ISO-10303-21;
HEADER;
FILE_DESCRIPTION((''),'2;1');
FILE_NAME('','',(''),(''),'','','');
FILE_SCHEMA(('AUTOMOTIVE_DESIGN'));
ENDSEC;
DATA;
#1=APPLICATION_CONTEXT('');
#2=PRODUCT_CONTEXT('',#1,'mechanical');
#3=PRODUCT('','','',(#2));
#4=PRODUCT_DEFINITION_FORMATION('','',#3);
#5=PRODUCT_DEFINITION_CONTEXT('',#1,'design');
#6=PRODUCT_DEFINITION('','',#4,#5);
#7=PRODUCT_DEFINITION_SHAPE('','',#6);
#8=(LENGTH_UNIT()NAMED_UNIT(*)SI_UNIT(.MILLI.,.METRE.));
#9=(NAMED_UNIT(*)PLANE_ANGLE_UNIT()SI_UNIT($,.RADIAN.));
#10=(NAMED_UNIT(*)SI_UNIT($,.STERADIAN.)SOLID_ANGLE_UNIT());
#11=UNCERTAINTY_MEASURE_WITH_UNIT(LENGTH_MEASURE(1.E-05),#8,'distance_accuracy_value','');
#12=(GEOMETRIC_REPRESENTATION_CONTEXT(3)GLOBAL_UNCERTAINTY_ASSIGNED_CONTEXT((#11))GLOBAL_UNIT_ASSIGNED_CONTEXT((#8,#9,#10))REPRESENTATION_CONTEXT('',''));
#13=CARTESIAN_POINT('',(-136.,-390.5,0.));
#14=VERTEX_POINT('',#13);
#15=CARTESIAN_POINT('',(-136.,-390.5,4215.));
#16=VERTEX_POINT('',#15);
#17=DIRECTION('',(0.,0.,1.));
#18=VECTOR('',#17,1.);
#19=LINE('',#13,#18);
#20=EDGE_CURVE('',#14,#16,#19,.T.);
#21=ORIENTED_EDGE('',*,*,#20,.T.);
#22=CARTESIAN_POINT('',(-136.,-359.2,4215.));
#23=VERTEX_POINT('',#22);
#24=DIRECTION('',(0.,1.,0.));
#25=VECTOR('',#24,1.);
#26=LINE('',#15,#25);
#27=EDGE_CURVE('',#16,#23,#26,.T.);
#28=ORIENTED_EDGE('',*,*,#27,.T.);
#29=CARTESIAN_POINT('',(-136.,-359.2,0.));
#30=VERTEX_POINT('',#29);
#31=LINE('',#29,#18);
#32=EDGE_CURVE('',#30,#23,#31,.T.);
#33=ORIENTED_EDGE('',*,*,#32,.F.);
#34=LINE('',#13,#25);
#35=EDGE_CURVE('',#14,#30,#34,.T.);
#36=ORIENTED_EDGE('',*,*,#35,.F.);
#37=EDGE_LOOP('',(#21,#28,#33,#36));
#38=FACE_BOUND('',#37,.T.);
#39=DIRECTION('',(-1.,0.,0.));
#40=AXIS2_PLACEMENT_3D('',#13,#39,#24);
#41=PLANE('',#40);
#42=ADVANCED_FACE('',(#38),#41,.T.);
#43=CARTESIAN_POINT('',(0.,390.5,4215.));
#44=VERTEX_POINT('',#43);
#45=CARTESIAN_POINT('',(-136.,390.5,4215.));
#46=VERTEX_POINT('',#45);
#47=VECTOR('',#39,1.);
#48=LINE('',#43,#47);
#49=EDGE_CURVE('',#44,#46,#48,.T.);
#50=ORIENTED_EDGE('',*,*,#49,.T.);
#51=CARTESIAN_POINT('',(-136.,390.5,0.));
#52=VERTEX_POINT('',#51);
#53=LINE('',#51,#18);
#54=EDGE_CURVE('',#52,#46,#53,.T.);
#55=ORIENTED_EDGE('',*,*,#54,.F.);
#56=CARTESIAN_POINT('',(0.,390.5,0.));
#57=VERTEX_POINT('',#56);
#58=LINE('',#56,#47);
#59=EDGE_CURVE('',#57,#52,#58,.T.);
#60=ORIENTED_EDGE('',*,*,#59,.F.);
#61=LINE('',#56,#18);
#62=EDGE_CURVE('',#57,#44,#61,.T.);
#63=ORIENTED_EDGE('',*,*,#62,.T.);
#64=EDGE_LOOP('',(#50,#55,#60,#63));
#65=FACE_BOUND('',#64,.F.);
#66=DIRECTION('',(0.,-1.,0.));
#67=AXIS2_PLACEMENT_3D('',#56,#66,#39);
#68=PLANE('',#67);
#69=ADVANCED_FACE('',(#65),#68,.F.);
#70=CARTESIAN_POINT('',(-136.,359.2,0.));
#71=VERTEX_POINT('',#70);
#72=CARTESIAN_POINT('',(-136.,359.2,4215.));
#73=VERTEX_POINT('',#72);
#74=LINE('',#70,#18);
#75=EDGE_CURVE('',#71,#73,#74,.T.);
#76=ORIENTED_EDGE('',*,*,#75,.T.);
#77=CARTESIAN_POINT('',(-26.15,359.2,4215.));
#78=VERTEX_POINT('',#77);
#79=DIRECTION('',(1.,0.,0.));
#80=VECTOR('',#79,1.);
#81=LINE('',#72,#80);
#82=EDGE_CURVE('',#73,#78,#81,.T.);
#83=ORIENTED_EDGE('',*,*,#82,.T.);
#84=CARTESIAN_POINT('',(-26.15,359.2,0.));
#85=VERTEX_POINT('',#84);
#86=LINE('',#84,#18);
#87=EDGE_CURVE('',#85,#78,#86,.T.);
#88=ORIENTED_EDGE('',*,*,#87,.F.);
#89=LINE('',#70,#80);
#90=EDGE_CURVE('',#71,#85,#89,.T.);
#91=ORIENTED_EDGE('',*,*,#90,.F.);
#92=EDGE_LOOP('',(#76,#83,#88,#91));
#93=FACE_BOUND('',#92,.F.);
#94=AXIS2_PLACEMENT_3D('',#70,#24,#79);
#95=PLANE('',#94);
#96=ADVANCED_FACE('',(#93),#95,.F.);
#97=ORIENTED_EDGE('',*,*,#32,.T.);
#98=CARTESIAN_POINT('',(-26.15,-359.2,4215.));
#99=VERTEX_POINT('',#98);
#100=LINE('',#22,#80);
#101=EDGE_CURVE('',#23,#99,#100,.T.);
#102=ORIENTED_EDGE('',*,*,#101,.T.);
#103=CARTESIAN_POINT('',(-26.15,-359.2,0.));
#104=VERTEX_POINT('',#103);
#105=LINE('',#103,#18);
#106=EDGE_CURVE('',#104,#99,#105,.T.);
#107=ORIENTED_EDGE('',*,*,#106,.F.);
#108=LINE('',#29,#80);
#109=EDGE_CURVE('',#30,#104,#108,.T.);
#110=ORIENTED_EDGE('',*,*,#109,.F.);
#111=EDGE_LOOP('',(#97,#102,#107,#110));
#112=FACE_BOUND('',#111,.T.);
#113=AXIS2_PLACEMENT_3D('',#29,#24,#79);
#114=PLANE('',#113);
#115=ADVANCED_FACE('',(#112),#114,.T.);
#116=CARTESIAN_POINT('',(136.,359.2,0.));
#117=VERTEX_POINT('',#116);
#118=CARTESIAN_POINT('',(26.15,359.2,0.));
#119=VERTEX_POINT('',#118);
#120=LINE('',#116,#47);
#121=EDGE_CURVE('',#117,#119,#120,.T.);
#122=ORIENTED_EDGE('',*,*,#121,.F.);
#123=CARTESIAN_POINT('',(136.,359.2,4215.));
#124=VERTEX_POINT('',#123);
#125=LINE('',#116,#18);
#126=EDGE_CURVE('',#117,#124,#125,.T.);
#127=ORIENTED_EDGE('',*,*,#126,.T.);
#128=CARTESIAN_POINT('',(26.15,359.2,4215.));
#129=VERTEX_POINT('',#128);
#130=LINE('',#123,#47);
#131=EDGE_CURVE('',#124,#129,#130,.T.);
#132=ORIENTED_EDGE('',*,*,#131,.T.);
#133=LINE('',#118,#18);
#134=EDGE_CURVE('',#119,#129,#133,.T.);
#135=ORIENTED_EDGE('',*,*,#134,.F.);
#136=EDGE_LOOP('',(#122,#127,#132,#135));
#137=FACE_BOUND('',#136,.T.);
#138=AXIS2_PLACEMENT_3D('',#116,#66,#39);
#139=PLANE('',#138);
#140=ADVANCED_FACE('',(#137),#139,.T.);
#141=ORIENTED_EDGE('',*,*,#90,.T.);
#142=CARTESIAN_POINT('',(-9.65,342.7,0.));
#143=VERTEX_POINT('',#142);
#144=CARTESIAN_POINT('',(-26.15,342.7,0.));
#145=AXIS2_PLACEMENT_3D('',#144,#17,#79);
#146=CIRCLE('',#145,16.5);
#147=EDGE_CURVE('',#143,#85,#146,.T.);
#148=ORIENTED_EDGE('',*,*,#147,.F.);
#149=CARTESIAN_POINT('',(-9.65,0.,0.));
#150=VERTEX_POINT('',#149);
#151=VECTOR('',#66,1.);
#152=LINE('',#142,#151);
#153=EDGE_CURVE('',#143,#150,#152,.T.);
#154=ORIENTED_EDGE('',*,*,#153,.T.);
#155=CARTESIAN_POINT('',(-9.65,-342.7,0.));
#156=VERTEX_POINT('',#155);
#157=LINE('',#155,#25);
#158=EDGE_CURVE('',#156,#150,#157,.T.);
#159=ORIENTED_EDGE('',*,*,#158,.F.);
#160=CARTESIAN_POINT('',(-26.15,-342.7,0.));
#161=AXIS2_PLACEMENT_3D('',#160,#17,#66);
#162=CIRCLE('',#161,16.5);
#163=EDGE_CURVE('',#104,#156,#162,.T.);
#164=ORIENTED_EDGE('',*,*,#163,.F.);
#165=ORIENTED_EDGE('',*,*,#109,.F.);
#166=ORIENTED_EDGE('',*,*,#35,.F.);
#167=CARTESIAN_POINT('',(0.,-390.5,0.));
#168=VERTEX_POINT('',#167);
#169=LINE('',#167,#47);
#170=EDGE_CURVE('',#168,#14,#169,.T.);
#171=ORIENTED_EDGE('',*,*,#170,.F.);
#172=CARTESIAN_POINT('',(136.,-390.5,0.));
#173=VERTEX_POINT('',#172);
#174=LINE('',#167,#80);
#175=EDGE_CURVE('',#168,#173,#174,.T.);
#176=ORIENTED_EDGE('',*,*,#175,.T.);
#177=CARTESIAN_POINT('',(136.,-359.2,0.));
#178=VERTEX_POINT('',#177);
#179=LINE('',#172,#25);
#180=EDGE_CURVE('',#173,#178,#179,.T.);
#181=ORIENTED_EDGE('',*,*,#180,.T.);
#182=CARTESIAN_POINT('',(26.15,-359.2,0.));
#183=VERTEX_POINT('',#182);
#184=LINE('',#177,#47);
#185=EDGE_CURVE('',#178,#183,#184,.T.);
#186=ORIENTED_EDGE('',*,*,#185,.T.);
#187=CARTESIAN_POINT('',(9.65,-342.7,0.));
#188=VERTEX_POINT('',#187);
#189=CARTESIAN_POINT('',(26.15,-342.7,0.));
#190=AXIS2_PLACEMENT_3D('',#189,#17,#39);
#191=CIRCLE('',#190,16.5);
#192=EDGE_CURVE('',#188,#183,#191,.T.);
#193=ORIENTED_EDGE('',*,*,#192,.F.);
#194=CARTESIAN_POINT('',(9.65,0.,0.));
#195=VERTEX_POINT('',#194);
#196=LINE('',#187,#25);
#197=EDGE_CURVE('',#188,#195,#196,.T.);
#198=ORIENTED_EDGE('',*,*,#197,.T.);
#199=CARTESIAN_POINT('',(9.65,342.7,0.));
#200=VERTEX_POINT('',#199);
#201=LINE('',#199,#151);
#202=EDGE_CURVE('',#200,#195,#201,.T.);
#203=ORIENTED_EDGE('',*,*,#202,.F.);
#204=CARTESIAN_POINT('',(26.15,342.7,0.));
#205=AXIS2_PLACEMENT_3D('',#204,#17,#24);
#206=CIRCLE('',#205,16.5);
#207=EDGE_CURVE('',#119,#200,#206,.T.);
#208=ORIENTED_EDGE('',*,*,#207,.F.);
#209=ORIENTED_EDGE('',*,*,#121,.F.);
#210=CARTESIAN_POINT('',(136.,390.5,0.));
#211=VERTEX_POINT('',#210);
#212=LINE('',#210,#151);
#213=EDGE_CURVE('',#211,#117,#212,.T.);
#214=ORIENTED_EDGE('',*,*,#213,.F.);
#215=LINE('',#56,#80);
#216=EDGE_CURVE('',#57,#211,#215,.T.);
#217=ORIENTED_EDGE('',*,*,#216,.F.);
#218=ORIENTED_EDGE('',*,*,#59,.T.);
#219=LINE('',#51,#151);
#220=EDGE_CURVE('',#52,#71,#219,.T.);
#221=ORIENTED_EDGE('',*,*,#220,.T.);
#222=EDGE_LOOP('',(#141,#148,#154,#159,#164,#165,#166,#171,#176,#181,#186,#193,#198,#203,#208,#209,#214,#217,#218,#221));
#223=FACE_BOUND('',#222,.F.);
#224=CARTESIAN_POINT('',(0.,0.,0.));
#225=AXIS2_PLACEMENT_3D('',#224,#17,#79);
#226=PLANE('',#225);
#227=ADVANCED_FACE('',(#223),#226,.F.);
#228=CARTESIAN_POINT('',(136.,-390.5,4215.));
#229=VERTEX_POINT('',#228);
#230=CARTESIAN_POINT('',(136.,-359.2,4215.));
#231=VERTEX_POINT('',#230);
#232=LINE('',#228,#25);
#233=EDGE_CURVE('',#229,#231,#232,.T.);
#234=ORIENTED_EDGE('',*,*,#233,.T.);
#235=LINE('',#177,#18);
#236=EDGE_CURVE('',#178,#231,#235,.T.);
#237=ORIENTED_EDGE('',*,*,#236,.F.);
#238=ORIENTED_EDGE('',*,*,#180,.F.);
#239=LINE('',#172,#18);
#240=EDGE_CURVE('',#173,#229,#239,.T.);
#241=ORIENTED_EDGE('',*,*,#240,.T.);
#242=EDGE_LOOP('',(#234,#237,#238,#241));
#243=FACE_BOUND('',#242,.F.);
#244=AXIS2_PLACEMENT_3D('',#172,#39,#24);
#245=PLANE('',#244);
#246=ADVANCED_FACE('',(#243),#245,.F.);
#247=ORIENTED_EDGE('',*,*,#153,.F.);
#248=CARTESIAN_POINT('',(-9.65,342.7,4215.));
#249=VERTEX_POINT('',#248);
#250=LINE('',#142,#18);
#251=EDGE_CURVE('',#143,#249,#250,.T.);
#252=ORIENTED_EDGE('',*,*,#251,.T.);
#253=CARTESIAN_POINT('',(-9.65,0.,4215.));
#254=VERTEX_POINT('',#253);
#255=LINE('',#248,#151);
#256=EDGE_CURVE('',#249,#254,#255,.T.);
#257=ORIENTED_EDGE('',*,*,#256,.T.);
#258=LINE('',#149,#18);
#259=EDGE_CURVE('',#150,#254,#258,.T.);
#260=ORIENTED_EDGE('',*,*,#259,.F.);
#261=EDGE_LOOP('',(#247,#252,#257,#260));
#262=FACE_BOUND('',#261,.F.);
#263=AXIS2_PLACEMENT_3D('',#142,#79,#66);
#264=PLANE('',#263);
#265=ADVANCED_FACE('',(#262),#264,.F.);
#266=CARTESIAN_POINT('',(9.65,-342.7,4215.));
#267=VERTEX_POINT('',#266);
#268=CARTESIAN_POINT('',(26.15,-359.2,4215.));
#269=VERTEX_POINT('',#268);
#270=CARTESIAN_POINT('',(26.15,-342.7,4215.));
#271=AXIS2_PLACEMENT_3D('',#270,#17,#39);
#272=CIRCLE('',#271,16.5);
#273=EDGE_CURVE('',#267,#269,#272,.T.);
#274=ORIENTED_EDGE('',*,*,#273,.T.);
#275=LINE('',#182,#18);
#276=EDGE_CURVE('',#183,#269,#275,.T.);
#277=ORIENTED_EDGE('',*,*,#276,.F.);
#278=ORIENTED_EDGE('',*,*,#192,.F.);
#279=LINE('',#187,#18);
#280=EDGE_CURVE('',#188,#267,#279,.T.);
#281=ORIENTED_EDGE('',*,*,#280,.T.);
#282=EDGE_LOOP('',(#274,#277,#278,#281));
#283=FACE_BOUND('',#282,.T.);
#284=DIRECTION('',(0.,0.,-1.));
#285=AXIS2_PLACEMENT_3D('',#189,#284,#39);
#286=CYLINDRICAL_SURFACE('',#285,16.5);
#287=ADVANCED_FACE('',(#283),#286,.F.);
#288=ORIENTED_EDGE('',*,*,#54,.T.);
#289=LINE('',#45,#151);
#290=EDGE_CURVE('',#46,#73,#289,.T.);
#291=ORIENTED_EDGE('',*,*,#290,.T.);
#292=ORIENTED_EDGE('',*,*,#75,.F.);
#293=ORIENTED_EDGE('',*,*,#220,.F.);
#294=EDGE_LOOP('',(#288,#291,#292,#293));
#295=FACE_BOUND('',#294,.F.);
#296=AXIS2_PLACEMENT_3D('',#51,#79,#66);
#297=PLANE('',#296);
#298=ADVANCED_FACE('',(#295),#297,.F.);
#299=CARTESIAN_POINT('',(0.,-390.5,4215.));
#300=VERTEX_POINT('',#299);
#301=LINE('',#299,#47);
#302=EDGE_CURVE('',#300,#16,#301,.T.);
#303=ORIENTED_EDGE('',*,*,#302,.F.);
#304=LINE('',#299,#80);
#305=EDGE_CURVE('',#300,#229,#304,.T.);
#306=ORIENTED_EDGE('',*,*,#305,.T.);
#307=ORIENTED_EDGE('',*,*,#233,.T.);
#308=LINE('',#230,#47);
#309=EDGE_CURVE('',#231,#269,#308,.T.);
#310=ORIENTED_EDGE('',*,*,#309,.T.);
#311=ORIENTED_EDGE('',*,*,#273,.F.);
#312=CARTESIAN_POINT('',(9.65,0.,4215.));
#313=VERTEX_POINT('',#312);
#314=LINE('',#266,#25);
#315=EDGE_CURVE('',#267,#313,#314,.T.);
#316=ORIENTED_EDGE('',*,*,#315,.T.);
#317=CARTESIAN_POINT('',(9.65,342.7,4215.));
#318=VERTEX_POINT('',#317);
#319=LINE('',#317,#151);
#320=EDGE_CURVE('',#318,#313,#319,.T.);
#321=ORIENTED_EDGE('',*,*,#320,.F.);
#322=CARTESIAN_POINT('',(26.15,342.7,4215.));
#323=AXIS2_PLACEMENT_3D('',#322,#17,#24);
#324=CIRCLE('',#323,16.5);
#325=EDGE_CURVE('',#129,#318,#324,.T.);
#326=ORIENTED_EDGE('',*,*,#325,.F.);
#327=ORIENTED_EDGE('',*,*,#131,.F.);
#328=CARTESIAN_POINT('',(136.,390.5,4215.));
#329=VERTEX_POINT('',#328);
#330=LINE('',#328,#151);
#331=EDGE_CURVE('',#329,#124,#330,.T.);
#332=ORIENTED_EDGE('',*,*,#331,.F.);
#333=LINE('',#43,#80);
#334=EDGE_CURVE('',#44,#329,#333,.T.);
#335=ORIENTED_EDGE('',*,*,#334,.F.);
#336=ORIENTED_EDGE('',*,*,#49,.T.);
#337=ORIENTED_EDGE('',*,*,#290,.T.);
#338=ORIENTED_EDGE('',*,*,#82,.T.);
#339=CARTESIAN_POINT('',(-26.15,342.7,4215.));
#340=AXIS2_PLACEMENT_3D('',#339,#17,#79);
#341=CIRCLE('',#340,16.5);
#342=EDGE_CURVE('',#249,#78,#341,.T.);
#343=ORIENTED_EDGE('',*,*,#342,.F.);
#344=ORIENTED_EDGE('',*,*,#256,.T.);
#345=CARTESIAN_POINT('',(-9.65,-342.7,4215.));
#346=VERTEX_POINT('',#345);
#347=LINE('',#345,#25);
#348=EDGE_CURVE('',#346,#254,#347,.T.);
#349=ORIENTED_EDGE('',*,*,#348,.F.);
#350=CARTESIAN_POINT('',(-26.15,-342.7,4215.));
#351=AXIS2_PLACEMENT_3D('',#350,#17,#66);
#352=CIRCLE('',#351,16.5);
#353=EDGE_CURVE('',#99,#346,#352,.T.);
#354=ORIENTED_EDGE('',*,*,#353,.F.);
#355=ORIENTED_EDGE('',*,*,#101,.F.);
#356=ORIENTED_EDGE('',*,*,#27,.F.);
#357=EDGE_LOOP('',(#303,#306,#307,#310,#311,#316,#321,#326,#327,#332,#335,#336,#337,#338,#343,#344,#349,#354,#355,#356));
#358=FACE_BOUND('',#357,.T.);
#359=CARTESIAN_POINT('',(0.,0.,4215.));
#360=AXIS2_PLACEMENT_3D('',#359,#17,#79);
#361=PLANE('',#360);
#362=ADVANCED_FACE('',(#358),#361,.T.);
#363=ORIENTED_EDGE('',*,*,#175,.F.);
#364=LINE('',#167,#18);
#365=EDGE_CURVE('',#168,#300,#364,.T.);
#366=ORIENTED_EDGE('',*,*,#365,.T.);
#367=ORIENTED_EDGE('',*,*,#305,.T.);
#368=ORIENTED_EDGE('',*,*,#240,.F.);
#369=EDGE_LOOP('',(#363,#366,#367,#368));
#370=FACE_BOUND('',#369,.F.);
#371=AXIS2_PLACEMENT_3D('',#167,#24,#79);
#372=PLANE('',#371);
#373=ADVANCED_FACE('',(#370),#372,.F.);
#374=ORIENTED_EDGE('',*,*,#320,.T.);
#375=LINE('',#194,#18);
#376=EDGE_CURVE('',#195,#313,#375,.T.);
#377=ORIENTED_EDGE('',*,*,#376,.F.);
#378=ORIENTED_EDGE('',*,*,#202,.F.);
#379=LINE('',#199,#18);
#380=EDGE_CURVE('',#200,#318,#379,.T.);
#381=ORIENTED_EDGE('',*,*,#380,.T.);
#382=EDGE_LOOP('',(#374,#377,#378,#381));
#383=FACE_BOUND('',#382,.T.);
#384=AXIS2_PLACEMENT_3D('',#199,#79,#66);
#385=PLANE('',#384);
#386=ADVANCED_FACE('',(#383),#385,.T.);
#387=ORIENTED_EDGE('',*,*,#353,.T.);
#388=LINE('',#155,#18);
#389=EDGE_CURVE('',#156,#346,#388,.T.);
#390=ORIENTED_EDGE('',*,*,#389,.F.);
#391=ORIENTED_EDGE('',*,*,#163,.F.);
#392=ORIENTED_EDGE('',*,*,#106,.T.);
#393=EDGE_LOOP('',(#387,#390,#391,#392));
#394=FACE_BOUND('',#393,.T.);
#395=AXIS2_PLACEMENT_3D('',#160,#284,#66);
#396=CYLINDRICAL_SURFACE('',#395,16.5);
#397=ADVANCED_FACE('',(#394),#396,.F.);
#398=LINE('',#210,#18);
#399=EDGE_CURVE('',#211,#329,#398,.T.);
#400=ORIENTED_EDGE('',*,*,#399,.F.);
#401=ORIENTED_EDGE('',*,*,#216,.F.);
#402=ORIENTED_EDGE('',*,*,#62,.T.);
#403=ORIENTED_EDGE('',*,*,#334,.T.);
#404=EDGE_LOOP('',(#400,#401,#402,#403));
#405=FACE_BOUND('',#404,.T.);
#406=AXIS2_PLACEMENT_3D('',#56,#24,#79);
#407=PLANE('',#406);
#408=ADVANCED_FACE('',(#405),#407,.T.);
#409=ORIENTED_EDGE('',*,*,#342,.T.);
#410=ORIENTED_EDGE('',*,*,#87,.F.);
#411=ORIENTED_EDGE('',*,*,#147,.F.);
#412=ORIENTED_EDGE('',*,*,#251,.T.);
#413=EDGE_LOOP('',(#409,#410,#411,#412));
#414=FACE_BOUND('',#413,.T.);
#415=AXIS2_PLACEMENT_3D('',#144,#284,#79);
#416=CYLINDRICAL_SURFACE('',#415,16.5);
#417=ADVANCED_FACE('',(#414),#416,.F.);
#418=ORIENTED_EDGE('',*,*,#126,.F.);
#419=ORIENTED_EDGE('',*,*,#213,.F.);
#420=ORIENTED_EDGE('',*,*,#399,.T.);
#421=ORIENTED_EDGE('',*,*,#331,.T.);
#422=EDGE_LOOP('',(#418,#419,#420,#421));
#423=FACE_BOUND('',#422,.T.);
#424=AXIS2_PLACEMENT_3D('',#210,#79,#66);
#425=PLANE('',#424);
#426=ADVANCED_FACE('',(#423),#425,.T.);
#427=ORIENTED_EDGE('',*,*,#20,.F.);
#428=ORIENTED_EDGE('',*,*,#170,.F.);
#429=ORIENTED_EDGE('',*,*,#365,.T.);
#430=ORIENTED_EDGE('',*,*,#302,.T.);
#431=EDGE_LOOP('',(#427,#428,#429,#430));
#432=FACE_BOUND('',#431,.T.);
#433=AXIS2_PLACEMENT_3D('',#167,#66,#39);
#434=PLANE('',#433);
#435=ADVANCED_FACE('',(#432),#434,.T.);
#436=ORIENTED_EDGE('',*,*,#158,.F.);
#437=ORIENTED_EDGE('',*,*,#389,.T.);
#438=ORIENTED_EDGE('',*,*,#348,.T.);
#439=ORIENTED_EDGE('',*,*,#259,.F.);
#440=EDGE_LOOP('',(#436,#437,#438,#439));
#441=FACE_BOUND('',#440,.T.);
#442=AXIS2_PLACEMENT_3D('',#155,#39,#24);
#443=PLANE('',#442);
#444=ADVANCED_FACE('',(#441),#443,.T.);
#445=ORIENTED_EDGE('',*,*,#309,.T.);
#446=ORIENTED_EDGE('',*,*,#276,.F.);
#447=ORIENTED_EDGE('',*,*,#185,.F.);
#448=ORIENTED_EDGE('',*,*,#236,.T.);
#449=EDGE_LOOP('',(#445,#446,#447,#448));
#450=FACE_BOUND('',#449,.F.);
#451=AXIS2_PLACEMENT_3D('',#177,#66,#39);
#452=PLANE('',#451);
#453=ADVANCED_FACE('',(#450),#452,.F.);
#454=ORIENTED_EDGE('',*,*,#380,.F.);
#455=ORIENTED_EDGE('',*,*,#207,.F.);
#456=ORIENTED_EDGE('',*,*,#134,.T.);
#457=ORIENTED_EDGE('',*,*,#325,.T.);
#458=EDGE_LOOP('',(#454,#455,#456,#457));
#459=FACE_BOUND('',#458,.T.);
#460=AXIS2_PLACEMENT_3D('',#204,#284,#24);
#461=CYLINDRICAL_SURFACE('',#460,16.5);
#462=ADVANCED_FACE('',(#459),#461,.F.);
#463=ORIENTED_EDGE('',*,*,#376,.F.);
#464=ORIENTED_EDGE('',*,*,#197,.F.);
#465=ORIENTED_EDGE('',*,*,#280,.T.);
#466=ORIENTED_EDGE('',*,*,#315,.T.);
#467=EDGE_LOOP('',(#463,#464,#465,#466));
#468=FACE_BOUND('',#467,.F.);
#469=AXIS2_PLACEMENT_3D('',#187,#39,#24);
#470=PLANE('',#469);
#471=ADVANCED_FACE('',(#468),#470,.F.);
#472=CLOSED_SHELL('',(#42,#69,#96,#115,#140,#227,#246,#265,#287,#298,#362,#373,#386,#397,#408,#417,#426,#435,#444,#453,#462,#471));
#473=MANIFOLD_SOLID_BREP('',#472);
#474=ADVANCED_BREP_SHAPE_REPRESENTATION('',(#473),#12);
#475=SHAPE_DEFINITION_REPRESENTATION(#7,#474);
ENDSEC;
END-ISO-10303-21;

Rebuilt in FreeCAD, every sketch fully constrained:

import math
import FreeCAD as App
import Part
import Sketcher

doc = App.newDocument("Part")
body = doc.addObject("PartDesign::Body", "Body")

sketch1 = body.newObject("Sketcher::SketchObject", "Sketch")
sketch1.AttachmentSupport = (doc.getObject("XY_Plane"), [""])
sketch1.MapMode = "FlatFace"
sketch1.addGeometry(Part.LineSegment(App.Vector(-136, -359, 0), App.Vector(-136, -390, 0)), False)
sketch1.addGeometry(Part.LineSegment(App.Vector(-136, -390, 0), App.Vector(136, -390, 0)), False)
sketch1.addGeometry(Part.LineSegment(App.Vector(136, -390, 0), App.Vector(136, -359, 0)), False)
sketch1.addGeometry(Part.LineSegment(App.Vector(136, -359, 0), App.Vector(26, -359, 0)), False)
sketch1.addGeometry(Part.ArcOfCircle(Part.Circle(App.Vector(26, -343, 0), App.Vector(0, 0, 1), 16), math.radians(180), math.radians(270)), False)
sketch1.addGeometry(Part.LineSegment(App.Vector(10, -343, 0), App.Vector(10, 343, 0)), False)
sketch1.addGeometry(Part.ArcOfCircle(Part.Circle(App.Vector(26, 343, 0), App.Vector(0, 0, 1), 16), math.radians(90), math.radians(180)), False)
sketch1.addGeometry(Part.LineSegment(App.Vector(26, 359, 0), App.Vector(136, 359, 0)), False)
sketch1.addGeometry(Part.LineSegment(App.Vector(136, 359, 0), App.Vector(136, 390, 0)), False)
sketch1.addGeometry(Part.LineSegment(App.Vector(136, 390, 0), App.Vector(-136, 390, 0)), False)
sketch1.addGeometry(Part.LineSegment(App.Vector(-136, 390, 0), App.Vector(-136, 359, 0)), False)
sketch1.addGeometry(Part.LineSegment(App.Vector(-136, 359, 0), App.Vector(-26, 359, 0)), False)
sketch1.addGeometry(Part.ArcOfCircle(Part.Circle(App.Vector(-26, 343, 0), App.Vector(0, 0, 1), 16), math.radians(0), math.radians(90)), False)
sketch1.addGeometry(Part.LineSegment(App.Vector(-10, 343, 0), App.Vector(-10, -343, 0)), False)
sketch1.addGeometry(Part.ArcOfCircle(Part.Circle(App.Vector(-26, -343, 0), App.Vector(0, 0, 1), 16), math.radians(-90), math.radians(0)), False)
sketch1.addGeometry(Part.LineSegment(App.Vector(-26, -359, 0), App.Vector(-136, -359, 0)), False)
sketch1.addConstraint(Sketcher.Constraint("Coincident", 0, 2, 1, 1))
sketch1.addConstraint(Sketcher.Constraint("Coincident", 1, 2, 2, 1))
sketch1.addConstraint(Sketcher.Constraint("Coincident", 2, 2, 3, 1))
sketch1.addConstraint(Sketcher.Constraint("Tangent", 3, 2, 4, 2))
sketch1.addConstraint(Sketcher.Constraint("Tangent", 4, 1, 5, 1))
sketch1.addConstraint(Sketcher.Constraint("Tangent", 5, 2, 6, 2))
sketch1.addConstraint(Sketcher.Constraint("Tangent", 6, 1, 7, 1))
sketch1.addConstraint(Sketcher.Constraint("Coincident", 7, 2, 8, 1))
sketch1.addConstraint(Sketcher.Constraint("Coincident", 8, 2, 9, 1))
sketch1.addConstraint(Sketcher.Constraint("Coincident", 9, 2, 10, 1))
sketch1.addConstraint(Sketcher.Constraint("Coincident", 10, 2, 11, 1))
sketch1.addConstraint(Sketcher.Constraint("Tangent", 11, 2, 12, 2))
sketch1.addConstraint(Sketcher.Constraint("Tangent", 12, 1, 13, 1))
sketch1.addConstraint(Sketcher.Constraint("Tangent", 13, 2, 14, 2))
sketch1.addConstraint(Sketcher.Constraint("Tangent", 14, 1, 15, 1))
sketch1.addConstraint(Sketcher.Constraint("Coincident", 15, 2, 0, 1))
sketch1.addConstraint(Sketcher.Constraint("Vertical", 0))
sketch1.addConstraint(Sketcher.Constraint("Horizontal", 1))
sketch1.addConstraint(Sketcher.Constraint("Vertical", 2))
sketch1.addConstraint(Sketcher.Constraint("Horizontal", 3))
sketch1.addConstraint(Sketcher.Constraint("Vertical", 5))
sketch1.addConstraint(Sketcher.Constraint("Horizontal", 7))
sketch1.addConstraint(Sketcher.Constraint("Vertical", 8))
sketch1.addConstraint(Sketcher.Constraint("Horizontal", 9))
sketch1.addConstraint(Sketcher.Constraint("Vertical", 10))
sketch1.addConstraint(Sketcher.Constraint("Horizontal", 11))
sketch1.addConstraint(Sketcher.Constraint("Vertical", 13))
sketch1.addConstraint(Sketcher.Constraint("Horizontal", 15))
sketch1.addConstraint(Sketcher.Constraint("Equal", 4, 6))
sketch1.addConstraint(Sketcher.Constraint("Equal", 6, 12))
sketch1.addConstraint(Sketcher.Constraint("Equal", 12, 14))
sketch1.addConstraint(Sketcher.Constraint("Symmetric", 4, 3, 12, 3, -1, 1))
sketch1.addConstraint(Sketcher.Constraint("Symmetric", 0, 2, 8, 2, -1, 1))
sketch1.addConstraint(Sketcher.Constraint("Symmetric", 7, 2, 10, 2, -2))
sketch1.addConstraint(Sketcher.Constraint("Symmetric", 2, 2, 15, 2, -2))
sketch1.addConstraint(Sketcher.Constraint("Radius", 4, 16.5))
sketch1.addConstraint(Sketcher.Constraint("DistanceY", 0, 2, 0, 1, 31.3))
sketch1.addConstraint(Sketcher.Constraint("DistanceX", 0, 2, -1, 1, 136.0))
sketch1.addConstraint(Sketcher.Constraint("DistanceY", 0, 2, -1, 1, 390.5))
sketch1.addConstraint(Sketcher.Constraint("DistanceX", -1, 1, 4, 1, 9.65))
pad1 = body.newObject("PartDesign::Pad", "Pad")
pad1.Profile = sketch1
pad1.Length = 4215

doc.recompute()
